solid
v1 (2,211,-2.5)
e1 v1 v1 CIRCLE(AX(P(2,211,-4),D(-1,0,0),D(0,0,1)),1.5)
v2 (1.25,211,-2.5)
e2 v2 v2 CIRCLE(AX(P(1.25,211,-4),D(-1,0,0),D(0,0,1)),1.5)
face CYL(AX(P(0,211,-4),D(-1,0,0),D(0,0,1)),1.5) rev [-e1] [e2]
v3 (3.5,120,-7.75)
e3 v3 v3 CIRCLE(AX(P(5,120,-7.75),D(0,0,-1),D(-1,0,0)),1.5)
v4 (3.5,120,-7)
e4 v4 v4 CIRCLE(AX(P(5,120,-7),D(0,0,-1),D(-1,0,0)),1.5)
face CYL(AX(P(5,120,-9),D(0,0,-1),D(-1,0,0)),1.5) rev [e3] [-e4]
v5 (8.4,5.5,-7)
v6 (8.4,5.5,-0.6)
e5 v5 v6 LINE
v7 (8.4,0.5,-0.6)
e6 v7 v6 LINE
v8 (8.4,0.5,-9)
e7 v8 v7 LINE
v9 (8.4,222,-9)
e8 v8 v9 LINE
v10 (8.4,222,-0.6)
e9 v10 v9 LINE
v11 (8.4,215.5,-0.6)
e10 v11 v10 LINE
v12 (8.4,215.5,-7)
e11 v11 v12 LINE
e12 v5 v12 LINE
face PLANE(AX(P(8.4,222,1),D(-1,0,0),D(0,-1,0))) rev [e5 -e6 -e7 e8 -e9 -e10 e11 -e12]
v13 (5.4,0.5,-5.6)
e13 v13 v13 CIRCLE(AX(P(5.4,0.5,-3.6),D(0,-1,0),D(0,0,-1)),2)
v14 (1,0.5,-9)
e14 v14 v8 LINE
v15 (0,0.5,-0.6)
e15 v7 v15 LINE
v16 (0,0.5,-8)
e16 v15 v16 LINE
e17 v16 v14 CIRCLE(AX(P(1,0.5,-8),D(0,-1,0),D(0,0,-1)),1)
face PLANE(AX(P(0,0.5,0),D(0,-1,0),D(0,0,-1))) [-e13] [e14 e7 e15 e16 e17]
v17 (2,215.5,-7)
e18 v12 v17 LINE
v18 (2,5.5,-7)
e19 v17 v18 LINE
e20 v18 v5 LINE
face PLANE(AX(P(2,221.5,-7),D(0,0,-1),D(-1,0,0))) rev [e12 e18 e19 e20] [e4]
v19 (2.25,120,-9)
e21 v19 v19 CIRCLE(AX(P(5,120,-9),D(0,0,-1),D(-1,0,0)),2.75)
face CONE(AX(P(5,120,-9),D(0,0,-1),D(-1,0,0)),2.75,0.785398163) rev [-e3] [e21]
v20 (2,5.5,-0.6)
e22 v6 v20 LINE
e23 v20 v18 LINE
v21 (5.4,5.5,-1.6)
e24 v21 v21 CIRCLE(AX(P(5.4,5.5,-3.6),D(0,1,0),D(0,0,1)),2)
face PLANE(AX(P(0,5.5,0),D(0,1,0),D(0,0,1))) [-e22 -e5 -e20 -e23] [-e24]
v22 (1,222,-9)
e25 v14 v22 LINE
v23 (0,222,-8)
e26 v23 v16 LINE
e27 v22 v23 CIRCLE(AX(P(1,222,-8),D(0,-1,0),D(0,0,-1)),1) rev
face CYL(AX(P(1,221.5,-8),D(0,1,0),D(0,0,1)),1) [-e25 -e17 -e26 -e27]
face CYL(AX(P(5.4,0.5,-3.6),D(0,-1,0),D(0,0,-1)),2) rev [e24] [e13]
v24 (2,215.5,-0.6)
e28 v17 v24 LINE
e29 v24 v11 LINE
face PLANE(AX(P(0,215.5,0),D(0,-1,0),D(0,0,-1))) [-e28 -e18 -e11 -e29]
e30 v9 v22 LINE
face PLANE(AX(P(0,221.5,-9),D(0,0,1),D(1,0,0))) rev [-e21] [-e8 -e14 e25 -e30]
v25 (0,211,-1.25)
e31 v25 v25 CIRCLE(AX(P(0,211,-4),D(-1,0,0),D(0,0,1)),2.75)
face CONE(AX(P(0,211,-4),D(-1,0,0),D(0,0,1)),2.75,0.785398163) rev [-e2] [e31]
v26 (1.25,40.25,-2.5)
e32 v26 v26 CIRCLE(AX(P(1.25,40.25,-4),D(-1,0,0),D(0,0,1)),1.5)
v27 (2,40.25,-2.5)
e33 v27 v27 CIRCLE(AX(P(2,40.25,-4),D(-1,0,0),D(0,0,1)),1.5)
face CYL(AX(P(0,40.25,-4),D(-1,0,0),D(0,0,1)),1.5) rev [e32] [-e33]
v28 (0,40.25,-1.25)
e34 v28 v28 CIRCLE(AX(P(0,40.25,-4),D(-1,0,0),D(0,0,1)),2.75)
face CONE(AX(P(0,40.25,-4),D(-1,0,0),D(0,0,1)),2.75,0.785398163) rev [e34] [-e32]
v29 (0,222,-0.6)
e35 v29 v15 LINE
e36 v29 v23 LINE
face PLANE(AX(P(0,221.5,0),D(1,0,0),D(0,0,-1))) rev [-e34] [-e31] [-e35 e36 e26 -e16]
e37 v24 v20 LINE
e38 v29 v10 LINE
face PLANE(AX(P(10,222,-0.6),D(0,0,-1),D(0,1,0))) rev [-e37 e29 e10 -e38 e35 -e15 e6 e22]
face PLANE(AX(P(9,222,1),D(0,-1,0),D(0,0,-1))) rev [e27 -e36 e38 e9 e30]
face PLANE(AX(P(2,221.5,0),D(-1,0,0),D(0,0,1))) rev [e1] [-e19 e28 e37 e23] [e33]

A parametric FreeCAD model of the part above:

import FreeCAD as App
import Part
import Sketcher


def edges_at(feature, points):
    """Names of the edges that pass closest to the given points."""
    edges = feature.Shape.Edges
    near = lambda p: min(range(len(edges)), key=lambda i: edges[i].distToShape(Part.Vertex(*p))[0])
    return sorted({f"Edge{near(p) + 1}" for p in points})

doc = App.newDocument("Part")
params = doc.addObject("Spreadsheet::Sheet", "Params")
for row, (alias, value) in enumerate([
    ("sketch1_width", "2 mm"),
    ("sketch1_width2", "7 mm"),
    ("pad1_length", "221.5 mm"),
    ("sketch2_diameter", "3 mm"),
    ("hole_diameter", "3 mm"),
    ("hole_csink_diameter", "5.5 mm"),
    ("sketch3_diameter", "3 mm"),
    ("hole2_diameter", "3 mm"),
    ("hole2_csink_diameter", "5.5 mm"),
    ("sketch4_width", "8 mm"),
    ("sketch4_height", "7 mm"),
    ("pad2_length", "5.5 mm"),
    ("sketch5_width", "1 mm"),
    ("pocket1_length", "359 mm"),
    ("sketch6_width", "9 mm"),
    ("sketch6_width2", "8 mm"),
    ("pad3_length", "3 mm"),
    ("sketch7_width", "9 mm"),
    ("sketch7_width2", "8 mm"),
    ("pad4_length", "2.5 mm"),
    ("pad4_length2", "6 mm"),
    ("sketch8_width", "9 mm"),
    ("sketch8_height", "2 mm"),
    ("pocket2_length", "10 mm"),
    ("sketch9_width", "225 mm"),
    ("sketch9_height", "0.6 mm"),
    ("pocket3_length", "10 mm"),
    ("sketch10_height", "225 mm"),
    ("sketch10_width", "0.6 mm"),
    ("pocket4_length", "10 mm"),
    ("sketch11_width", "5.5 mm"),
    ("sketch11_height", "8.4 mm"),
    ("pocket5_length", "10 mm"),
    ("sketch12_width", "8.4 mm"),
    ("sketch12_width2", "7.4 mm"),
    ("pad5_length", "2 mm"),
    ("sketch13_diameter", "4 mm"),
    ("hole3_diameter", "4 mm"),
    ("hole3_depth", "5 mm"),
    ("sketch14_width", "1 mm"),
    ("pad6_length", "221.5 mm"),
    ("fillet_radius", "1 mm"),
], start=1):
    params.set(f"A{row}", alias)
    params.set(f"B{row}", "=" + value)
    params.setAlias(f"B{row}", alias)

body = doc.addObject("PartDesign::Body", "Body")

# Sketch on XZ plane
sketch1 = body.newObject("Sketcher::SketchObject", "Sketch")
sketch1.AttachmentSupport = (doc.getObject("XZ_Plane"), [""])
sketch1.MapMode = "FlatFace"
sketch1.addGeometry([
    Part.LineSegment(App.Vector(0, -9, 0), App.Vector(0, 0, 0)),  # 0
    Part.LineSegment(App.Vector(0, 0, 0), App.Vector(2, 0, 0)),  # 1
    Part.LineSegment(App.Vector(2, 0, 0), App.Vector(2, -7, 0)),  # 2
    Part.LineSegment(App.Vector(2, -7, 0), App.Vector(9, -7, 0)),  # 3
    Part.LineSegment(App.Vector(9, -7, 0), App.Vector(9, -9, 0)),  # 4
    Part.LineSegment(App.Vector(9, -9, 0), App.Vector(0, -9, 0)),  # 5
], False)
sketch1.addConstraint([
    Sketcher.Constraint("Coincident", 0, 2, 1, 1),
    Sketcher.Constraint("Coincident", 1, 2, 2, 1),
    Sketcher.Constraint("Coincident", 2, 2, 3, 1),
    Sketcher.Constraint("Coincident", 3, 2, 4, 1),
    Sketcher.Constraint("Coincident", 4, 2, 5, 1),
    Sketcher.Constraint("Coincident", 5, 2, 0, 1),
    Sketcher.Constraint("Vertical", 0),
    Sketcher.Constraint("Horizontal", 1),
    Sketcher.Constraint("Vertical", 2),
    Sketcher.Constraint("Horizontal", 3),
    Sketcher.Constraint("Vertical", 4),
    Sketcher.Constraint("Horizontal", 5),
    Sketcher.Constraint("Coincident", 0, 2, -1, 1),
    Sketcher.Constraint("Equal", 5, 0),
    Sketcher.Constraint("Equal", 3, 2),
    Sketcher.Constraint("DistanceX", 1, 1, 1, 2, 2.0),
    Sketcher.Constraint("DistanceX", 3, 1, 3, 2, 7.0),
])
sketch1.setExpression("Constraints[15]", "Params.sketch1_width")
sketch1.setExpression("Constraints[16]", "Params.sketch1_width2")
pad1 = body.newObject("PartDesign::Pad", "Pad")
pad1.Profile = sketch1
pad1.setExpression("Length", "Params.pad1_length")
pad1.Reversed = True

# Sketch on YZ plane
sketch2 = body.newObject("Sketcher::SketchObject", "Sketch001")
sketch2.AttachmentSupport = (doc.getObject("YZ_Plane"), [""])
sketch2.MapMode = "FlatFace"
sketch2.addGeometry([
    Part.Circle(App.Vector(211, -4, 0), App.Vector(0, 0, 1), 1.5),
    Part.Circle(App.Vector(40.25, -4, 0), App.Vector(0, 0, 1), 1.5),
], False)
sketch2.addConstraint([
    Sketcher.Constraint("Equal", 0, 1),
    Sketcher.Constraint("Horizontal", 0, 3, 1, 3),
    Sketcher.Constraint("Diameter", 0, 3.0),
    Sketcher.Constraint("DistanceX", -1, 1, 0, 3, 211.0),
    Sketcher.Constraint("DistanceY", 0, 3, -1, 1, 4.0),
    Sketcher.Constraint("DistanceX", -1, 1, 1, 3, 40.25),
])
sketch2.setExpression("Constraints[2]", "Params.sketch2_diameter")
doc.recompute()
hole = body.newObject("PartDesign::Hole", "Hole")
hole.Profile = sketch2
hole.ThreadType = "None"
hole.setExpression("Diameter", "Params.hole_diameter")
hole.DepthType = "ThroughAll"
hole.HoleCutType = "Countersink"
hole.setExpression("HoleCutDiameter", "Params.hole_csink_diameter")
hole.HoleCutCountersinkAngle = 90
hole.Reversed = True

# Sketch on XY plane
sketch3 = body.newObject("Sketcher::SketchObject", "Sketch002")
sketch3.AttachmentSupport = (doc.getObject("XY_Plane"), [""])
sketch3.MapMode = "FlatFace"
sketch3.AttachmentOffset = App.Placement(App.Vector(0, 0, -9), App.Rotation())
sketch3.addGeometry(Part.Circle(App.Vector(5, 120, 0), App.Vector(0, 0, 1), 1.5), False)
sketch3.addConstraint([
    Sketcher.Constraint("Diameter", 0, 3.0),
    Sketcher.Constraint("DistanceX", -1, 1, 0, 3, 5.0),
    Sketcher.Constraint("DistanceY", -1, 1, 0, 3, 120.0),
])
sketch3.setExpression("Constraints[0]", "Params.sketch3_diameter")
doc.recompute()
hole2 = body.newObject("PartDesign::Hole", "Hole001")
hole2.Profile = sketch3
hole2.ThreadType = "None"
hole2.setExpression("Diameter", "Params.hole2_diameter")
hole2.DepthType = "ThroughAll"
hole2.HoleCutType = "Countersink"
hole2.setExpression("HoleCutDiameter", "Params.hole2_csink_diameter")
hole2.HoleCutCountersinkAngle = 90
hole2.Reversed = True

# Sketch on XZ plane
sketch4 = body.newObject("Sketcher::SketchObject", "Sketch003")
sketch4.AttachmentSupport = (doc.getObject("XZ_Plane"), [""])
sketch4.MapMode = "FlatFace"
sketch4.addGeometry([
    Part.LineSegment(App.Vector(1, 0, 0), App.Vector(1, -7, 0)),
    Part.LineSegment(App.Vector(1, -7, 0), App.Vector(9, -7, 0)),
    Part.LineSegment(App.Vector(9, -7, 0), App.Vector(9, 0, 0)),
    Part.LineSegment(App.Vector(9, 0, 0), App.Vector(1, 0, 0)),
], False)
sketch4.addConstraint([
    Sketcher.Constraint("Coincident", 0, 2, 1, 1),
    Sketcher.Constraint("Coincident", 1, 2, 2, 1),
    Sketcher.Constraint("Coincident", 2, 2, 3, 1),
    Sketcher.Constraint("Coincident", 3, 2, 0, 1),
    Sketcher.Constraint("Vertical", 0),
    Sketcher.Constraint("Horizontal", 1),
    Sketcher.Constraint("Vertical", 2),
    Sketcher.Constraint("Horizontal", 3),
    Sketcher.Constraint("PointOnObject", 2, 2, -1),
    Sketcher.Constraint("DistanceX", 1, 1, 1, 2, 8.0),
    Sketcher.Constraint("DistanceY", 0, 2, 0, 1, 7.0),
    Sketcher.Constraint("DistanceX", -1, 1, 0, 2, 1.0),
])
sketch4.setExpression("Constraints[9]", "Params.sketch4_width")
sketch4.setExpression("Constraints[10]", "Params.sketch4_height")
pad2 = body.newObject("PartDesign::Pad", "Pad001")
pad2.Profile = sketch4
pad2.setExpression("Length", "Params.pad2_length")
pad2.Reversed = True

# Sketch on XZ plane
sketch5 = body.newObject("Sketcher::SketchObject", "Sketch004")
sketch5.AttachmentSupport = (doc.getObject("XZ_Plane"), [""])
sketch5.MapMode = "FlatFace"
sketch5.AttachmentOffset = App.Placement(App.Vector(0, 0, -221.5), App.Rotation())
sketch5.addGeometry([
    Part.LineSegment(App.Vector(0, -8, 0), App.Vector(1, -9, 0)),
    Part.LineSegment(App.Vector(1, -9, 0), App.Vector(0, -9, 0)),
    Part.LineSegment(App.Vector(0, -9, 0), App.Vector(0, -8, 0)),
], False)
sketch5.addConstraint([
    Sketcher.Constraint("Coincident", 0, 2, 1, 1),
    Sketcher.Constraint("Coincident", 1, 2, 2, 1),
    Sketcher.Constraint("Coincident", 2, 2, 0, 1),
    Sketcher.Constraint("Horizontal", 1),
    Sketcher.Constraint("Vertical", 2),
    Sketcher.Constraint("PointOnObject", 1, 2, -2),
    Sketcher.Constraint("Equal", 1, 2),
    Sketcher.Constraint("DistanceX", 1, 2, 1, 1, 1.0),
    Sketcher.Constraint("DistanceY", 0, 2, -1, 1, 9.0),
])
sketch5.setExpression("Constraints[7]", "Params.sketch5_width")
pocket1 = body.newObject("PartDesign::Pocket", "Pocket")
pocket1.Profile = sketch5
pocket1.setExpression("Length", "Params.pocket1_length")
pocket1.Reversed = True

# Sketch on XZ plane
sketch6 = body.newObject("Sketcher::SketchObject", "Sketch005")
sketch6.AttachmentSupport = (doc.getObject("XZ_Plane"), [""])
sketch6.MapMode = "FlatFace"
sketch6.addGeometry([
    Part.LineSegment(App.Vector(9, 0, 0), App.Vector(0, 0, 0)),  # 0
    Part.LineSegment(App.Vector(0, 0, 0), App.Vector(0, -8, 0)),  # 1
    Part.LineSegment(App.Vector(0, -8, 0), App.Vector(1, -9, 0)),  # 2
    Part.LineSegment(App.Vector(1, -9, 0), App.Vector(9, -9, 0)),  # 3
    Part.LineSegment(App.Vector(9, -9, 0), App.Vector(9, 0, 0)),  # 4
], False)
sketch6.addConstraint([
    Sketcher.Constraint("Coincident", 0, 2, 1, 1),
    Sketcher.Constraint("Coincident", 1, 2, 2, 1),
    Sketcher.Constraint("Coincident", 2, 2, 3, 1),
    Sketcher.Constraint("Coincident", 3, 2, 4, 1),
    Sketcher.Constraint("Coincident", 4, 2, 0, 1),
    Sketcher.Constraint("Horizontal", 0),
    Sketcher.Constraint("Vertical", 1),
    Sketcher.Constraint("Horizontal", 3),
    Sketcher.Constraint("Vertical", 4),
    Sketcher.Constraint("Coincident", 0, 2, -1, 1),
    Sketcher.Constraint("Equal", 3, 1),
    Sketcher.Constraint("Equal", 0, 4),
    Sketcher.Constraint("DistanceX", 0, 2, 0, 1, 9.0),
    Sketcher.Constraint("DistanceX", 3, 1, 3, 2, 8.0),
])
sketch6.setExpression("Constraints[12]", "Params.sketch6_width")
sketch6.setExpression("Constraints[13]", "Params.sketch6_width2")
pad3 = body.newObject("PartDesign::Pad", "Pad002")
pad3.Profile = sketch6
pad3.setExpression("Length", "Params.pad3_length")

# Sketch on XZ plane
sketch7 = body.newObject("Sketcher::SketchObject", "Sketch006")
sketch7.AttachmentSupport = (doc.getObject("XZ_Plane"), [""])
sketch7.MapMode = "FlatFace"
sketch7.AttachmentOffset = App.Placement(App.Vector(0, 0, -221.5), App.Rotation())
sketch7.addGeometry([
    Part.LineSegment(App.Vector(0, 0, 0), App.Vector(9, 0, 0)),  # 0
    Part.LineSegment(App.Vector(9, 0, 0), App.Vector(9, -9, 0)),  # 1
    Part.LineSegment(App.Vector(9, -9, 0), App.Vector(1, -9, 0)),  # 2
    Part.LineSegment(App.Vector(1, -9, 0), App.Vector(0, -8, 0)),  # 3
    Part.LineSegment(App.Vector(0, -8, 0), App.Vector(0, 0, 0)),  # 4
], False)
sketch7.addConstraint([
    Sketcher.Constraint("Coincident", 0, 2, 1, 1),
    Sketcher.Constraint("Coincident", 1, 2, 2, 1),
    Sketcher.Constraint("Coincident", 2, 2, 3, 1),
    Sketcher.Constraint("Coincident", 3, 2, 4, 1),
    Sketcher.Constraint("Coincident", 4, 2, 0, 1),
    Sketcher.Constraint("Horizontal", 0),
    Sketcher.Constraint("Vertical", 1),
    Sketcher.Constraint("Horizontal", 2),
    Sketcher.Constraint("Vertical", 4),
    Sketcher.Constraint("Coincident", 4, 2, -1, 1),
    Sketcher.Constraint("Equal", 0, 1),
    Sketcher.Constraint("Equal", 2, 4),
    Sketcher.Constraint("DistanceX", 0, 1, 0, 2, 9.0),
    Sketcher.Constraint("DistanceX", 2, 2, 2, 1, 8.0),
])
sketch7.setExpression("Constraints[12]", "Params.sketch7_width")
sketch7.setExpression("Constraints[13]", "Params.sketch7_width2")
pad4 = body.newObject("PartDesign::Pad", "Pad003")
pad4.Profile = sketch7
pad4.Type = "TwoLengths"
pad4.setExpression("Length", "Params.pad4_length")
pad4.setExpression("Length2", "Params.pad4_length2")
pad4.Reversed = True

# Sketch on XY plane
sketch8 = body.newObject("Sketcher::SketchObject", "Sketch007")
sketch8.AttachmentSupport = (doc.getObject("XY_Plane"), [""])
sketch8.MapMode = "FlatFace"
sketch8.AttachmentOffset = App.Placement(App.Vector(0, 0, -9), App.Rotation())
sketch8.addGeometry([
    Part.LineSegment(App.Vector(9, 224, 0), App.Vector(9, 222, 0)),
    Part.LineSegment(App.Vector(9, 222, 0), App.Vector(0, 222, 0)),
    Part.LineSegment(App.Vector(0, 222, 0), App.Vector(0, 224, 0)),
    Part.LineSegment(App.Vector(0, 224, 0), App.Vector(9, 224, 0)),
], False)
sketch8.addConstraint([
    Sketcher.Constraint("Coincident", 0, 2, 1, 1),
    Sketcher.Constraint("Coincident", 1, 2, 2, 1),
    Sketcher.Constraint("Coincident", 2, 2, 3, 1),
    Sketcher.Constraint("Coincident", 3, 2, 0, 1),
    Sketcher.Constraint("Vertical", 0),
    Sketcher.Constraint("Horizontal", 1),
    Sketcher.Constraint("Vertical", 2),
    Sketcher.Constraint("Horizontal", 3),
    Sketcher.Constraint("PointOnObject", 1, 2, -2),
    Sketcher.Constraint("DistanceX", 1, 2, 1, 1, 9.0),
    Sketcher.Constraint("DistanceY", 0, 2, 0, 1, 2.0),
    Sketcher.Constraint("DistanceY", -1, 1, 0, 2, 222.0),
])
sketch8.setExpression("Constraints[9]", "Params.sketch8_width")
sketch8.setExpression("Constraints[10]", "Params.sketch8_height")
pocket2 = body.newObject("PartDesign::Pocket", "Pocket001")
pocket2.Profile = sketch8
pocket2.setExpression("Length", "Params.pocket2_length")
pocket2.Reversed = True

# Sketch on YZ plane
sketch9 = body.newObject("Sketcher::SketchObject", "Sketch008")
sketch9.AttachmentSupport = (doc.getObject("YZ_Plane"), [""])
sketch9.MapMode = "FlatFace"
sketch9.addGeometry([
    Part.LineSegment(App.Vector(222, -0.6, 0), App.Vector(-3, -0.6, 0)),
    Part.LineSegment(App.Vector(-3, -0.6, 0), App.Vector(-3, 0, 0)),
    Part.LineSegment(App.Vector(-3, 0, 0), App.Vector(222, 0, 0)),
    Part.LineSegment(App.Vector(222, 0, 0), App.Vector(222, -0.6, 0)),
], False)
sketch9.addConstraint([
    Sketcher.Constraint("Coincident", 0, 2, 1, 1),
    Sketcher.Constraint("Coincident", 1, 2, 2, 1),
    Sketcher.Constraint("Coincident", 2, 2, 3, 1),
    Sketcher.Constraint("Coincident", 3, 2, 0, 1),
    Sketcher.Constraint("Horizontal", 0),
    Sketcher.Constraint("Vertical", 1),
    Sketcher.Constraint("Horizontal", 2),
    Sketcher.Constraint("Vertical", 3),
    Sketcher.Constraint("PointOnObject", 1, 2, -1),
    Sketcher.Constraint("DistanceX", 0, 2, 0, 1, 225.0),
    Sketcher.Constraint("DistanceY", 1, 1, 1, 2, 0.6),
    Sketcher.Constraint("DistanceX", 0, 2, -1, 1, 3.0),
])
sketch9.setExpression("Constraints[9]", "Params.sketch9_width")
sketch9.setExpression("Constraints[10]", "Params.sketch9_height")
pocket3 = body.newObject("PartDesign::Pocket", "Pocket002")
pocket3.Profile = sketch9
pocket3.setExpression("Length", "Params.pocket3_length")
pocket3.Reversed = True

# Sketch on XY plane
sketch10 = body.newObject("Sketcher::SketchObject", "Sketch009")
sketch10.AttachmentSupport = (doc.getObject("XY_Plane"), [""])
sketch10.MapMode = "FlatFace"
sketch10.AttachmentOffset = App.Placement(App.Vector(0, 0, -9), App.Rotation())
sketch10.addGeometry([
    Part.LineSegment(App.Vector(9, 222, 0), App.Vector(9, -3, 0)),
    Part.LineSegment(App.Vector(9, -3, 0), App.Vector(8.4, -3, 0)),
    Part.LineSegment(App.Vector(8.4, -3, 0), App.Vector(8.4, 222, 0)),
    Part.LineSegment(App.Vector(8.4, 222, 0), App.Vector(9, 222, 0)),
], False)
sketch10.addConstraint([
    Sketcher.Constraint("Coincident", 0, 2, 1, 1),
    Sketcher.Constraint("Coincident", 1, 2, 2, 1),
    Sketcher.Constraint("Coincident", 2, 2, 3, 1),
    Sketcher.Constraint("Coincident", 3, 2, 0, 1),
    Sketcher.Constraint("Vertical", 0),
    Sketcher.Constraint("Horizontal", 1),
    Sketcher.Constraint("Vertical", 2),
    Sketcher.Constraint("Horizontal", 3),
    Sketcher.Constraint("DistanceY", 0, 2, 0, 1, 225.0),
    Sketcher.Constraint("DistanceX", 1, 2, 1, 1, 0.6),
    Sketcher.Constraint("DistanceX", -1, 1, 0, 2, 9.0),
    Sketcher.Constraint("DistanceY", 0, 2, -1, 1, 3.0),
])
sketch10.setExpression("Constraints[8]", "Params.sketch10_height")
sketch10.setExpression("Constraints[9]", "Params.sketch10_width")
pocket4 = body.newObject("PartDesign::Pocket", "Pocket003")
pocket4.Profile = sketch10
pocket4.setExpression("Length", "Params.pocket4_length")
pocket4.Reversed = True

# Sketch on YZ plane
sketch11 = body.newObject("Sketcher::SketchObject", "Sketch010")
sketch11.AttachmentSupport = (doc.getObject("YZ_Plane"), [""])
sketch11.MapMode = "FlatFace"
sketch11.addGeometry([
    Part.LineSegment(App.Vector(2.5, -9, 0), App.Vector(-3, -9, 0)),
    Part.LineSegment(App.Vector(-3, -9, 0), App.Vector(-3, -0.6, 0)),
    Part.LineSegment(App.Vector(-3, -0.6, 0), App.Vector(2.5, -0.6, 0)),
    Part.LineSegment(App.Vector(2.5, -0.6, 0), App.Vector(2.5, -9, 0)),
], False)
sketch11.addConstraint([
    Sketcher.Constraint("Coincident", 0, 2, 1, 1),
    Sketcher.Constraint("Coincident", 1, 2, 2, 1),
    Sketcher.Constraint("Coincident", 2, 2, 3, 1),
    Sketcher.Constraint("Coincident", 3, 2, 0, 1),
    Sketcher.Constraint("Horizontal", 0),
    Sketcher.Constraint("Vertical", 1),
    Sketcher.Constraint("Horizontal", 2),
    Sketcher.Constraint("Vertical", 3),
    Sketcher.Constraint("DistanceX", 0, 2, 0, 1, 5.5),
    Sketcher.Constraint("DistanceY", 1, 1, 1, 2, 8.4),
    Sketcher.Constraint("DistanceX", 0, 2, -1, 1, 3.0),
    Sketcher.Constraint("DistanceY", 0, 2, -1, 1, 9.0),
])
sketch11.setExpression("Constraints[8]", "Params.sketch11_width")
sketch11.setExpression("Constraints[9]", "Params.sketch11_height")
pocket5 = body.newObject("PartDesign::Pocket", "Pocket004")
pocket5.Profile = sketch11
pocket5.setExpression("Length", "Params.pocket5_length")
pocket5.Reversed = True

# Sketch on XZ plane
sketch12 = body.newObject("Sketcher::SketchObject", "Sketch011")
sketch12.AttachmentSupport = (doc.getObject("XZ_Plane"), [""])
sketch12.MapMode = "FlatFace"
sketch12.AttachmentOffset = App.Placement(App.Vector(0, 0, -2.5), App.Rotation())
sketch12.addGeometry([
    Part.LineSegment(App.Vector(8.4, -0.6, 0), App.Vector(0, -0.6, 0)),  # 0
    Part.LineSegment(App.Vector(0, -0.6, 0), App.Vector(0, -8, 0)),  # 1
    Part.LineSegment(App.Vector(0, -8, 0), App.Vector(1, -9, 0)),  # 2
    Part.LineSegment(App.Vector(1, -9, 0), App.Vector(8.4, -9, 0)),  # 3
    Part.LineSegment(App.Vector(8.4, -9, 0), App.Vector(8.4, -0.6, 0)),  # 4
], False)
sketch12.addConstraint([
    Sketcher.Constraint("Coincident", 0, 2, 1, 1),
    Sketcher.Constraint("Coincident", 1, 2, 2, 1),
    Sketcher.Constraint("Coincident", 2, 2, 3, 1),
    Sketcher.Constraint("Coincident", 3, 2, 4, 1),
    Sketcher.Constraint("Coincident", 4, 2, 0, 1),
    Sketcher.Constraint("Horizontal", 0),
    Sketcher.Constraint("Vertical", 1),
    Sketcher.Constraint("Horizontal", 3),
    Sketcher.Constraint("Vertical", 4),
    Sketcher.Constraint("PointOnObject", 0, 2, -2),
    Sketcher.Constraint("Equal", 3, 1),
    Sketcher.Constraint("Equal", 0, 4),
    Sketcher.Constraint("DistanceX", 0, 2, 0, 1, 8.4),
    Sketcher.Constraint("DistanceX", 3, 1, 3, 2, 7.4),
    Sketcher.Constraint("DistanceY", 1, 2, -1, 1, 8.0),
])
sketch12.setExpression("Constraints[12]", "Params.sketch12_width")
sketch12.setExpression("Constraints[13]", "Params.sketch12_width2")
pad5 = body.newObject("PartDesign::Pad", "Pad004")
pad5.Profile = sketch12
pad5.setExpression("Length", "Params.pad5_length")

# Sketch on XZ plane
sketch13 = body.newObject("Sketcher::SketchObject", "Sketch012")
sketch13.AttachmentSupport = (doc.getObject("XZ_Plane"), [""])
sketch13.MapMode = "FlatFace"
sketch13.AttachmentOffset = App.Placement(App.Vector(0, 0, -0.5), App.Rotation())
sketch13.addGeometry(Part.Circle(App.Vector(5.4, -3.6, 0), App.Vector(0, 0, 1), 2), False)
sketch13.addConstraint([
    Sketcher.Constraint("Diameter", 0, 4.0),
    Sketcher.Constraint("DistanceX", -1, 1, 0, 3, 5.4),
    Sketcher.Constraint("DistanceY", 0, 3, -1, 1, 3.6),
])
sketch13.setExpression("Constraints[0]", "Params.sketch13_diameter")
doc.recompute()
hole3 = body.newObject("PartDesign::Hole", "Hole002")
hole3.Profile = sketch13
hole3.ThreadType = "None"
hole3.setExpression("Diameter", "Params.hole3_diameter")
hole3.DepthType = "Dimension"
hole3.setExpression("Depth", "Params.hole3_depth")
hole3.DrillPoint = "Flat"

# Sketch on XZ plane
sketch14 = body.newObject("Sketcher::SketchObject", "Sketch013")
sketch14.AttachmentSupport = (doc.getObject("XZ_Plane"), [""])
sketch14.MapMode = "FlatFace"
sketch14.AttachmentOffset = App.Placement(App.Vector(0, 0, -222), App.Rotation())
sketch14.addGeometry([
    Part.LineSegment(App.Vector(0, -8, 0), App.Vector(1, -9, 0)),
    Part.LineSegment(App.Vector(1, -9, 0), App.Vector(0, -9, 0)),
    Part.LineSegment(App.Vector(0, -9, 0), App.Vector(0, -8, 0)),
], False)
sketch14.addConstraint([
    Sketcher.Constraint("Coincident", 0, 2, 1, 1),
    Sketcher.Constraint("Coincident", 1, 2, 2, 1),
    Sketcher.Constraint("Coincident", 2, 2, 0, 1),
    Sketcher.Constraint("Horizontal", 1),
    Sketcher.Constraint("Vertical", 2),
    Sketcher.Constraint("PointOnObject", 1, 2, -2),
    Sketcher.Constraint("Equal", 1, 2),
    Sketcher.Constraint("DistanceX", 1, 2, 1, 1, 1.0),
    Sketcher.Constraint("DistanceY", 0, 2, -1, 1, 9.0),
])
sketch14.setExpression("Constraints[7]", "Params.sketch14_width")
pad6 = body.newObject("PartDesign::Pad", "Pad005")
pad6.Profile = sketch14
pad6.setExpression("Length", "Params.pad6_length")
doc.recompute()

fillet = body.newObject("PartDesign::Fillet", "Fillet")
fillet.Base = (pad6, edges_at(pad6, [(0, 111.25, -9)]))
fillet.setExpression("Radius", "Params.fillet_radius")

doc.recompute()
